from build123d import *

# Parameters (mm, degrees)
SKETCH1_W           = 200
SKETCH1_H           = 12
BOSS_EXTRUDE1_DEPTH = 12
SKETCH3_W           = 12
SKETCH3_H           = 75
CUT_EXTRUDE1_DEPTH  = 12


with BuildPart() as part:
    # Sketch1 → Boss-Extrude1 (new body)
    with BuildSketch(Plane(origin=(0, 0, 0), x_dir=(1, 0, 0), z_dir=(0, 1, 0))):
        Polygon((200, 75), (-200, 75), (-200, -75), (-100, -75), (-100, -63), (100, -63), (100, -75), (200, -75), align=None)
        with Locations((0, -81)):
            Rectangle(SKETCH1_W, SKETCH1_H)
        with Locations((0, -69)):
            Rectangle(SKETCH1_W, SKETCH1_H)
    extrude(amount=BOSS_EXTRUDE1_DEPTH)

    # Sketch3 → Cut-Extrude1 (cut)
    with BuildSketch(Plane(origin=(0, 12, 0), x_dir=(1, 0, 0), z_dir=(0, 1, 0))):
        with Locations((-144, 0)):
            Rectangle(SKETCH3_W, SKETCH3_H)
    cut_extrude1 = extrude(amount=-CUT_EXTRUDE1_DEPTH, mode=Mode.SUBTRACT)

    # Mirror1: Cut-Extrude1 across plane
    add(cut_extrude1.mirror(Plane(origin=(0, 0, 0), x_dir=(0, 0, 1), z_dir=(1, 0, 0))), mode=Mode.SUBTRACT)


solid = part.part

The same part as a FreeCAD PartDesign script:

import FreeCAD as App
import Part
import Sketcher
from FreeCAD import Vector


def add_polygon(sketch, points):
    """Adds a closed chain of lines whose ends are joined by coincident constraints."""
    first, n = sketch.GeometryCount, len(points)
    for a, b in zip(points, points[1:] + points[:1]):
        sketch.addGeometry(Part.LineSegment(App.Vector(*a, 0), App.Vector(*b, 0)), False)
    for i in range(n):
        sketch.addConstraint(Sketcher.Constraint("Coincident", first + i, 2, first + (i + 1) % n, 1))

doc = App.newDocument("Part")
body = doc.addObject("PartDesign::Body", "Body")

sketch1 = body.newObject("Sketcher::SketchObject", "Sketch")
sketch1.AttachmentSupport = (doc.getObject("XZ_Plane"), [""])
sketch1.MapMode = "FlatFace"
add_polygon(sketch1, [(200, -75), (-200, -75), (-200, 75), (-100, 75), (-100, 87), (100, 87), (100, 75), (200, 75)])
sketch1.addConstraint([
    Sketcher.Constraint("Horizontal", 0),
    Sketcher.Constraint("Vertical", 1),
    Sketcher.Constraint("Horizontal", 2),
    Sketcher.Constraint("Vertical", 3),
    Sketcher.Constraint("Horizontal", 4),
    Sketcher.Constraint("Vertical", 5),
    Sketcher.Constraint("Horizontal", 6),
    Sketcher.Constraint("Vertical", 7),
    Sketcher.Constraint("Symmetric", 0, 2, 6, 2, -1, 1),
    Sketcher.Constraint("Symmetric", 2, 2, 5, 2, -2),
    Sketcher.Constraint("DistanceX", 0, 2, 0, 1, 400.0),
    Sketcher.Constraint("DistanceX", 2, 1, 2, 2, 100.0),
    Sketcher.Constraint("DistanceY", 1, 1, 1, 2, 150.0),
    Sketcher.Constraint("DistanceY", 3, 1, 3, 2, 12.0),
])
pad1 = body.newObject("PartDesign::Pad", "Pad")
pad1.Profile = sketch1
pad1.Length = 12
pad1.Reversed = True

sketch2 = body.newObject("Sketcher::SketchObject", "Sketch001")
sketch2.AttachmentSupport = (doc.getObject("XZ_Plane"), [""])
sketch2.MapMode = "FlatFace"
sketch2.AttachmentOffset = App.Placement(Vector(0, 0, -12), App.Rotation())
add_polygon(sketch2, [(-150, -38), (-150, 38), (-138, 38), (-138, -38)])
sketch2.addConstraint([
    Sketcher.Constraint("Vertical", 0),
    Sketcher.Constraint("Horizontal", 1),
    Sketcher.Constraint("Vertical", 2),
    Sketcher.Constraint("Horizontal", 3),
    Sketcher.Constraint("DistanceX", 1, 1, 1, 2, 12.0),
    Sketcher.Constraint("DistanceY", 0, 1, 0, 2, 75.0),
    Sketcher.Constraint("DistanceX", 0, 2, -1, 1, 150.0),
    Sketcher.Constraint("DistanceY", -1, 1, 0, 2, 37.5),
])
pocket1 = body.newObject("PartDesign::Pocket", "Pocket")
pocket1.Profile = sketch2
pocket1.Length = 12
pocket1.Reversed = True
doc.recompute()

mirrored = body.newObject("PartDesign::Mirrored", "Mirrored")
mirrored.Originals = [pocket1]
mirrored.MirrorPlane = (doc.getObject("YZ_Plane"), [""])
body.Tip = mirrored

doc.recompute()
